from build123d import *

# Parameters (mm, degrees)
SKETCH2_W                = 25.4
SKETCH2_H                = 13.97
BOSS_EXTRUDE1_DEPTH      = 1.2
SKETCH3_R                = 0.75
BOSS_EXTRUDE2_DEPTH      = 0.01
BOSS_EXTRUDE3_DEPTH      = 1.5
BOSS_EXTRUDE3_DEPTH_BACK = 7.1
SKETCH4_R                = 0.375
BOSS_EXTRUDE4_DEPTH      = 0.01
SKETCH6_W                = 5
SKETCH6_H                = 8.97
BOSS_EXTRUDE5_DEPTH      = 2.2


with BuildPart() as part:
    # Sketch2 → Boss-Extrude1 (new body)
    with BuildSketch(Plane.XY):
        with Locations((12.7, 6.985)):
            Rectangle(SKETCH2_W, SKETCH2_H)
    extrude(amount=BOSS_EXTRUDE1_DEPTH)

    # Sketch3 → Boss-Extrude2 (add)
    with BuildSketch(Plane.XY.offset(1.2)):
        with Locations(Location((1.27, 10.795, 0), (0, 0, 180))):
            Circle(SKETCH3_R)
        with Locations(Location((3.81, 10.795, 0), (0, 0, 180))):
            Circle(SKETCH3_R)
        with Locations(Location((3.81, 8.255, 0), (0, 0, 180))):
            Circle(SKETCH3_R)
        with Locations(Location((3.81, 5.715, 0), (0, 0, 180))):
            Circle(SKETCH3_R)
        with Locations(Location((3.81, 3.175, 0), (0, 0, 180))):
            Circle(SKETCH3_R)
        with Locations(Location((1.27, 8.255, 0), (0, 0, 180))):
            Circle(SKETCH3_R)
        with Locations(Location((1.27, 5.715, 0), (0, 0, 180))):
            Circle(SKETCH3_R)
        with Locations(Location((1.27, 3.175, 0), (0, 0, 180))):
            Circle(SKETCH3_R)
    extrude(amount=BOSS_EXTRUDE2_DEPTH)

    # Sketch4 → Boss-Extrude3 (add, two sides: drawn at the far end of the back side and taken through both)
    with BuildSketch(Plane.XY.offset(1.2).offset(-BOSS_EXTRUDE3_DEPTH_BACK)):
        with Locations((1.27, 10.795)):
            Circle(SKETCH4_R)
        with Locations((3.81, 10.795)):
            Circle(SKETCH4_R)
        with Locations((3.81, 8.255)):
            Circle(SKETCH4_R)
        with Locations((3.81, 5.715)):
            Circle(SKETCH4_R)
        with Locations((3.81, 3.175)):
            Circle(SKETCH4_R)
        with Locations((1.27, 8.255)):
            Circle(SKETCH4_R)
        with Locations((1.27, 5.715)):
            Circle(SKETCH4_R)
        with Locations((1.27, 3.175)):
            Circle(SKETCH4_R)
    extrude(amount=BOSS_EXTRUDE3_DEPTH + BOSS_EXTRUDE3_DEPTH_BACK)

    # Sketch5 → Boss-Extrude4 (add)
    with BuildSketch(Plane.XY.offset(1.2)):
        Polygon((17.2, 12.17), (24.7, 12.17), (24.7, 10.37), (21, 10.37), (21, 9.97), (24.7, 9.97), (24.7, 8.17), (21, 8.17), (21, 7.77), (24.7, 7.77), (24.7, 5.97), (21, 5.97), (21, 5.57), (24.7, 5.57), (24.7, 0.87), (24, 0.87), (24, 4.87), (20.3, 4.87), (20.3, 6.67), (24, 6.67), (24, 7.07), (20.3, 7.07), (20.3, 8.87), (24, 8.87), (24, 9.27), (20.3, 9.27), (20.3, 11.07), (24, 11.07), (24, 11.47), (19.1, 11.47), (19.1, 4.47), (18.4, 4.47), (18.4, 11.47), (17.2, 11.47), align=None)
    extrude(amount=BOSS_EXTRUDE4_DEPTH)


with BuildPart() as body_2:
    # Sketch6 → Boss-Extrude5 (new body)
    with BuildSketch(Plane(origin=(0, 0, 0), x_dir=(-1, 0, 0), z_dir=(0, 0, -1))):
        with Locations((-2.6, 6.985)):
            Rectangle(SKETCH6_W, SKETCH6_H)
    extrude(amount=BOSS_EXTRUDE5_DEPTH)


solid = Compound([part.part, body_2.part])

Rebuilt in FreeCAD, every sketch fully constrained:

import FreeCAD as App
import Part
import Sketcher

doc = App.newDocument("Part")
body = doc.addObject("PartDesign::Body", "Body")

# Sketch on XY plane
sketch1 = body.newObject("Sketcher::SketchObject", "Sketch")
sketch1.AttachmentSupport = (doc.getObject("XY_Plane"), [""])
sketch1.MapMode = "FlatFace"
sketch1.addGeometry([
    Part.LineSegment(App.Vector(0, 14, 0), App.Vector(0, 0, 0)),
    Part.LineSegment(App.Vector(0, 0, 0), App.Vector(25, 0, 0)),
    Part.LineSegment(App.Vector(25, 0, 0), App.Vector(25, 14, 0)),
    Part.LineSegment(App.Vector(25, 14, 0), App.Vector(0, 14, 0)),
], False)
sketch1.addConstraint([
    Sketcher.Constraint("Coincident", 0, 2, 1, 1),
    Sketcher.Constraint("Coincident", 1, 2, 2, 1),
    Sketcher.Constraint("Coincident", 2, 2, 3, 1),
    Sketcher.Constraint("Coincident", 3, 2, 0, 1),
    Sketcher.Constraint("Vertical", 0),
    Sketcher.Constraint("Horizontal", 1),
    Sketcher.Constraint("Vertical", 2),
    Sketcher.Constraint("Horizontal", 3),
    Sketcher.Constraint("Coincident", 0, 2, -1, 1),
    Sketcher.Constraint("DistanceX", 1, 1, 1, 2, 25.4),
    Sketcher.Constraint("DistanceY", 0, 2, 0, 1, 13.97),
])
pad1 = body.newObject("PartDesign::Pad", "Pad")
pad1.Profile = sketch1
pad1.Length = 1.2

# Sketch on XY plane
sketch2 = body.newObject("Sketcher::SketchObject", "Sketch001")
sketch2.AttachmentSupport = (doc.getObject("XY_Plane"), [""])
sketch2.MapMode = "FlatFace"
sketch2.AttachmentOffset = App.Placement(App.Vector(0, 0, 1.2), App.Rotation())
sketch2.addGeometry([
    Part.Circle(App.Vector(1.3, 10.8, 0), App.Vector(0, 0, 1), 0.8),  # 0
    Part.Circle(App.Vector(3.8, 10.8, 0), App.Vector(0, 0, 1), 0.8),  # 1
    Part.Circle(App.Vector(3.8, 8.3, 0), App.Vector(0, 0, 1), 0.8),  # 2
    Part.Circle(App.Vector(3.8, 5.7, 0), App.Vector(0, 0, 1), 0.8),  # 3
    Part.Circle(App.Vector(3.8, 3.2, 0), App.Vector(0, 0, 1), 0.8),  # 4
    Part.Circle(App.Vector(1.3, 8.3, 0), App.Vector(0, 0, 1), 0.8),  # 5
    Part.Circle(App.Vector(1.3, 5.7, 0), App.Vector(0, 0, 1), 0.8),  # 6
    Part.Circle(App.Vector(1.3, 3.2, 0), App.Vector(0, 0, 1), 0.8),  # 7
], False)
sketch2.addConstraint([
    Sketcher.Constraint("Equal", 0, 1),
    Sketcher.Constraint("Equal", 1, 2),
    Sketcher.Constraint("Equal", 2, 3),
    Sketcher.Constraint("Equal", 3, 4),
    Sketcher.Constraint("Equal", 4, 5),
    Sketcher.Constraint("Equal", 5, 6),
    Sketcher.Constraint("Equal", 6, 7),
    Sketcher.Constraint("Horizontal", 0, 3, 1, 3),
    Sketcher.Constraint("Horizontal", 2, 3, 5, 3),
    Sketcher.Constraint("Horizontal", 3, 3, 6, 3),
    Sketcher.Constraint("Horizontal", 4, 3, 7, 3),
    Sketcher.Constraint("Vertical", 1, 3, 2, 3),
    Sketcher.Constraint("Vertical", 2, 3, 3, 3),
    Sketcher.Constraint("Vertical", 3, 3, 4, 3),
    Sketcher.Constraint("Vertical", 0, 3, 5, 3),
    Sketcher.Constraint("Vertical", 5, 3, 6, 3),
    Sketcher.Constraint("Vertical", 6, 3, 7, 3),
    Sketcher.Constraint("Diameter", 0, 1.5),
    Sketcher.Constraint("DistanceX", -1, 1, 0, 3, 1.27),
    Sketcher.Constraint("DistanceX", -1, 1, 1, 3, 3.81),
    Sketcher.Constraint("DistanceY", 2, 3, 1, 3, 2.54),
    Sketcher.Constraint("DistanceY", 3, 3, 2, 3, 2.54),
    Sketcher.Constraint("DistanceY", 4, 3, 3, 3, 2.54),
    Sketcher.Constraint("DistanceY", -1, 1, 0, 3, 10.795),
])
pad2 = body.newObject("PartDesign::Pad", "Pad001")
pad2.Profile = sketch2
pad2.Length = 0.01

# Sketch on XY plane
sketch3 = body.newObject("Sketcher::SketchObject", "Sketch002")
sketch3.AttachmentSupport = (doc.getObject("XY_Plane"), [""])
sketch3.MapMode = "FlatFace"
sketch3.AttachmentOffset = App.Placement(App.Vector(0, 0, 1.2), App.Rotation())
sketch3.addGeometry([
    Part.Circle(App.Vector(1.27, 10.79, 0), App.Vector(0, 0, 1), 0.38),  # 0
    Part.Circle(App.Vector(3.81, 10.79, 0), App.Vector(0, 0, 1), 0.38),  # 1
    Part.Circle(App.Vector(3.81, 8.26, 0), App.Vector(0, 0, 1), 0.38),  # 2
    Part.Circle(App.Vector(3.81, 5.71, 0), App.Vector(0, 0, 1), 0.38),  # 3
    Part.Circle(App.Vector(3.81, 3.17, 0), App.Vector(0, 0, 1), 0.38),  # 4
    Part.Circle(App.Vector(1.27, 8.26, 0), App.Vector(0, 0, 1), 0.38),  # 5
    Part.Circle(App.Vector(1.27, 5.71, 0), App.Vector(0, 0, 1), 0.38),  # 6
    Part.Circle(App.Vector(1.27, 3.17, 0), App.Vector(0, 0, 1), 0.38),  # 7
], False)
sketch3.addConstraint([
    Sketcher.Constraint("Equal", 0, 1),
    Sketcher.Constraint("Equal", 1, 2),
    Sketcher.Constraint("Equal", 2, 3),
    Sketcher.Constraint("Equal", 3, 4),
    Sketcher.Constraint("Equal", 4, 5),
    Sketcher.Constraint("Equal", 5, 6),
    Sketcher.Constraint("Equal", 6, 7),
    Sketcher.Constraint("Horizontal", 0, 3, 1, 3),
    Sketcher.Constraint("Horizontal", 2, 3, 5, 3),
    Sketcher.Constraint("Horizontal", 3, 3, 6, 3),
    Sketcher.Constraint("Horizontal", 4, 3, 7, 3),
    Sketcher.Constraint("Vertical", 1, 3, 2, 3),
    Sketcher.Constraint("Vertical", 2, 3, 3, 3),
    Sketcher.Constraint("Vertical", 3, 3, 4, 3),
    Sketcher.Constraint("Vertical", 0, 3, 5, 3),
    Sketcher.Constraint("Vertical", 5, 3, 6, 3),
    Sketcher.Constraint("Vertical", 6, 3, 7, 3),
    Sketcher.Constraint("Diameter", 0, 0.75),
    Sketcher.Constraint("DistanceX", -1, 1, 0, 3, 1.27),
    Sketcher.Constraint("DistanceX", -1, 1, 1, 3, 3.81),
    Sketcher.Constraint("DistanceY", 2, 3, 1, 3, 2.54),
    Sketcher.Constraint("DistanceY", 3, 3, 2, 3, 2.54),
    Sketcher.Constraint("DistanceY", 4, 3, 3, 3, 2.54),
    Sketcher.Constraint("DistanceY", -1, 1, 0, 3, 10.795),
])
pad3 = body.newObject("PartDesign::Pad", "Pad002")
pad3.Profile = sketch3
pad3.Type = "TwoLengths"
pad3.Length = 1.5
pad3.Length2 = 7.1

# Sketch on XY plane
sketch4 = body.newObject("Sketcher::SketchObject", "Sketch003")
sketch4.AttachmentSupport = (doc.getObject("XY_Plane"), [""])
sketch4.MapMode = "FlatFace"
sketch4.AttachmentOffset = App.Placement(App.Vector(0, 0, 1.2), App.Rotation())
sketch4.addGeometry([
    Part.LineSegment(App.Vector(24.7, 12.17, 0), App.Vector(17.2, 12.17, 0)),  # 0
    Part.LineSegment(App.Vector(17.2, 12.17, 0), App.Vector(17.2, 11.47, 0)),  # 1
    Part.LineSegment(App.Vector(17.2, 11.47, 0), App.Vector(18.4, 11.47, 0)),  # 2
    Part.LineSegment(App.Vector(18.4, 11.47, 0), App.Vector(18.4, 4.47, 0)),  # 3
    Part.LineSegment(App.Vector(18.4, 4.47, 0), App.Vector(19.1, 4.47, 0)),  # 4
    Part.LineSegment(App.Vector(19.1, 4.47, 0), App.Vector(19.1, 11.47, 0)),  # 5
    Part.LineSegment(App.Vector(19.1, 11.47, 0), App.Vector(24, 11.47, 0)),  # 6
    Part.LineSegment(App.Vector(24, 11.47, 0), App.Vector(24, 11.07, 0)),  # 7
    Part.LineSegment(App.Vector(24, 11.07, 0), App.Vector(20.3, 11.07, 0)),  # 8
    Part.LineSegment(App.Vector(20.3, 11.07, 0), App.Vector(20.3, 9.27, 0)),  # 9
    Part.LineSegment(App.Vector(20.3, 9.27, 0), App.Vector(24, 9.27, 0)),  # 10
    Part.LineSegment(App.Vector(24, 9.27, 0), App.Vector(24, 8.87, 0)),  # 11
    Part.LineSegment(App.Vector(24, 8.87, 0), App.Vector(20.3, 8.87, 0)),  # 12
    Part.LineSegment(App.Vector(20.3, 8.87, 0), App.Vector(20.3, 7.07, 0)),  # 13
    Part.LineSegment(App.Vector(20.3, 7.07, 0), App.Vector(24, 7.07, 0)),  # 14
    Part.LineSegment(App.Vector(24, 7.07, 0), App.Vector(24, 6.67, 0)),  # 15
    Part.LineSegment(App.Vector(24, 6.67, 0), App.Vector(20.3, 6.67, 0)),  # 16
    Part.LineSegment(App.Vector(20.3, 6.67, 0), App.Vector(20.3, 4.87, 0)),  # 17
    Part.LineSegment(App.Vector(20.3, 4.87, 0), App.Vector(24, 4.87, 0)),  # 18
    Part.LineSegment(App.Vector(24, 4.87, 0), App.Vector(24, 0.87, 0)),  # 19
    Part.LineSegment(App.Vector(24, 0.87, 0), App.Vector(24.7, 0.87, 0)),  # 20
    Part.LineSegment(App.Vector(24.7, 0.87, 0), App.Vector(24.7, 5.57, 0)),  # 21
    Part.LineSegment(App.Vector(24.7, 5.57, 0), App.Vector(21, 5.57, 0)),  # 22
    Part.LineSegment(App.Vector(21, 5.57, 0), App.Vector(21, 5.97, 0)),  # 23
    Part.LineSegment(App.Vector(21, 5.97, 0), App.Vector(24.7, 5.97, 0)),  # 24
    Part.LineSegment(App.Vector(24.7, 5.97, 0), App.Vector(24.7, 7.77, 0)),  # 25
    Part.LineSegment(App.Vector(24.7, 7.77, 0), App.Vector(21, 7.77, 0)),  # 26
    Part.LineSegment(App.Vector(21, 7.77, 0), App.Vector(21, 8.17, 0)),  # 27
    Part.LineSegment(App.Vector(21, 8.17, 0), App.Vector(24.7, 8.17, 0)),  # 28
    Part.LineSegment(App.Vector(24.7, 8.17, 0), App.Vector(24.7, 9.97, 0)),  # 29
    Part.LineSegment(App.Vector(24.7, 9.97, 0), App.Vector(21, 9.97, 0)),  # 30
    Part.LineSegment(App.Vector(21, 9.97, 0), App.Vector(21, 10.37, 0)),  # 31
    Part.LineSegment(App.Vector(21, 10.37, 0), App.Vector(24.7, 10.37, 0)),  # 32
    Part.LineSegment(App.Vector(24.7, 10.37, 0), App.Vector(24.7, 12.17, 0)),  # 33
], False)
sketch4.addConstraint([
    Sketcher.Constraint("Coincident", 0, 2, 1, 1),
    Sketcher.Constraint("Coincident", 1, 2, 2, 1),
    Sketcher.Constraint("Coincident", 2, 2, 3, 1),
    Sketcher.Constraint("Coincident", 3, 2, 4, 1),
    Sketcher.Constraint("Coincident", 4, 2, 5, 1),
    Sketcher.Constraint("Coincident", 5, 2, 6, 1),
    Sketcher.Constraint("Coincident", 6, 2, 7, 1),
    Sketcher.Constraint("Coincident", 7, 2, 8, 1),
    Sketcher.Constraint("Coincident", 8, 2, 9, 1),
    Sketcher.Constraint("Coincident", 9, 2, 10, 1),
    Sketcher.Constraint("Coincident", 10, 2, 11, 1),
    Sketcher.Constraint("Coincident", 11, 2, 12, 1),
    Sketcher.Constraint("Coincident", 12, 2, 13, 1),
    Sketcher.Constraint("Coincident", 13, 2, 14, 1),
    Sketcher.Constraint("Coincident", 14, 2, 15, 1),
    Sketcher.Constraint("Coincident", 15, 2, 16, 1),
    Sketcher.Constraint("Coincident", 16, 2, 17, 1),
    Sketcher.Constraint("Coincident", 17, 2, 18, 1),
    Sketcher.Constraint("Coincident", 18, 2, 19, 1),
    Sketcher.Constraint("Coincident", 19, 2, 20, 1),
    Sketcher.Constraint("Coincident", 20, 2, 21, 1),
    Sketcher.Constraint("Coincident", 21, 2, 22, 1),
    Sketcher.Constraint("Coincident", 22, 2, 23, 1),
    Sketcher.Constraint("Coincident", 23, 2, 24, 1),
    Sketcher.Constraint("Coincident", 24, 2, 25, 1),
    Sketcher.Constraint("Coincident", 25, 2, 26, 1),
    Sketcher.Constraint("Coincident", 26, 2, 27, 1),
    Sketcher.Constraint("Coincident", 27, 2, 28, 1),
    Sketcher.Constraint("Coincident", 28, 2, 29, 1),
    Sketcher.Constraint("Coincident", 29, 2, 30, 1),
    Sketcher.Constraint("Coincident", 30, 2, 31, 1),
    Sketcher.Constraint("Coincident", 31, 2, 32, 1),
    Sketcher.Constraint("Coincident", 32, 2, 33, 1),
    Sketcher.Constraint("Coincident", 33, 2, 0, 1),
    Sketcher.Constraint("Horizontal", 0),
    Sketcher.Constraint("Vertical", 1),
    Sketcher.Constraint("Horizontal", 2),
    Sketcher.Constraint("Vertical", 3),
    Sketcher.Constraint("Horizontal", 4),
    Sketcher.Constraint("Vertical", 5),
    Sketcher.Constraint("Horizontal", 6),
    Sketcher.Constraint("Vertical", 7),
    Sketcher.Constraint("Horizontal", 8),
    Sketcher.Constraint("Vertical", 9),
    Sketcher.Constraint("Horizontal", 10),
    Sketcher.Constraint("Vertical", 11),
    Sketcher.Constraint("Horizontal", 12),
    Sketcher.Constraint("Vertical", 13),
    Sketcher.Constraint("Horizontal", 14),
    Sketcher.Constraint("Vertical", 15),
    Sketcher.Constraint("Horizontal", 16),
    Sketcher.Constraint("Vertical", 17),
    Sketcher.Constraint("Horizontal", 18),
    Sketcher.Constraint("Vertical", 19),
    Sketcher.Constraint("Horizontal", 20),
    Sketcher.Constraint("Vertical", 21),
    Sketcher.Constraint("Horizontal", 22),
    Sketcher.Constraint("Vertical", 23),
    Sketcher.Constraint("Horizontal", 24),
    Sketcher.Constraint("Vertical", 25),
    Sketcher.Constraint("Horizontal", 26),
    Sketcher.Constraint("Vertical", 27),
    Sketcher.Constraint("Horizontal", 28),
    Sketcher.Constraint("Vertical", 29),
    Sketcher.Constraint("Horizontal", 30),
    Sketcher.Constraint("Vertical", 31),
    Sketcher.Constraint("Horizontal", 32),
    Sketcher.Constraint("Vertical", 33),
    Sketcher.Constraint("Horizontal", 2, 2, 5, 2),
    Sketcher.Constraint("Vertical", 7, 2, 10, 2),
    Sketcher.Constraint("Vertical", 9, 2, 12, 2),
    Sketcher.Constraint("Vertical", 11, 2, 14, 2),
    Sketcher.Constraint("Vertical", 13, 2, 16, 2),
    Sketcher.Constraint("Vertical", 15, 2, 18, 2),
    Sketcher.Constraint("Vertical", 21, 2, 24, 2),
    Sketcher.Constraint("Vertical", 23, 2, 26, 2),
    Sketcher.Constraint("Vertical", 25, 2, 28, 2),
    Sketcher.Constraint("Vertical", 27, 2, 30, 2),
    Sketcher.Constraint("Vertical", 29, 2, 32, 2),
    Sketcher.Constraint("Equal", 4, 20),
    Sketcher.Constraint("Equal", 18, 22),
    Sketcher.Constraint("Equal", 20, 1),
    Sketcher.Constraint("Equal", 7, 11),
    Sketcher.Constraint("Equal", 9, 13),
    Sketcher.Constraint("Equal", 11, 15),
    Sketcher.Constraint("Equal", 13, 17),
    Sketcher.Constraint("Equal", 15, 23),
    Sketcher.Constraint("Equal", 17, 25),
    Sketcher.Constraint("Equal", 23, 27),
    Sketcher.Constraint("Equal", 25, 29),
    Sketcher.Constraint("Equal", 27, 31),
    Sketcher.Constraint("Equal", 29, 33),
    Sketcher.Constraint("DistanceY", 3, 2, 3, 1, 7.0),
    Sketcher.Constraint("DistanceY", 19, 2, 19, 1, 4.0),
    Sketcher.Constraint("DistanceX", 0, 2, 0, 1, 7.5),
    Sketcher.Constraint("DistanceX", 2, 1, 2, 2, 1.2),
    Sketcher.Constraint("DistanceX", 4, 1, 4, 2, 0.7),
    Sketcher.Constraint("DistanceX", 8, 2, 8, 1, 3.7),
    Sketcher.Constraint("DistanceY", 7, 2, 7, 1, 0.4),
    Sketcher.Constraint("DistanceY", 9, 2, 9, 1, 1.8),
    Sketcher.Constraint("DistanceX", -1, 1, 6, 2, 24.0),
    Sketcher.Constraint("DistanceY", -1, 1, 0, 2, 12.17),
])
pad4 = body.newObject("PartDesign::Pad", "Pad003")
pad4.Profile = sketch4
pad4.Length = 0.01
body2 = doc.addObject("PartDesign::Body", "Body001")

# Sketch on XY plane
sketch5 = body2.newObject("Sketcher::SketchObject", "Sketch004")
sketch5.AttachmentSupport = (doc.getObject("XY_Plane001"), [""])
sketch5.MapMode = "FlatFace"
sketch5.addGeometry([
    Part.LineSegment(App.Vector(5, 11, 0), App.Vector(5, 2, 0)),
    Part.LineSegment(App.Vector(5, 2, 0), App.Vector(0, 2, 0)),
    Part.LineSegment(App.Vector(0, 2, 0), App.Vector(0, 11, 0)),
    Part.LineSegment(App.Vector(0, 11, 0), App.Vector(5, 11, 0)),
], False)
sketch5.addConstraint([
    Sketcher.Constraint("Coincident", 0, 2, 1, 1),
    Sketcher.Constraint("Coincident", 1, 2, 2, 1),
    Sketcher.Constraint("Coincident", 2, 2, 3, 1),
    Sketcher.Constraint("Coincident", 3, 2, 0, 1),
    Sketcher.Constraint("Vertical", 0),
    Sketcher.Constraint("Horizontal", 1),
    Sketcher.Constraint("Vertical", 2),
    Sketcher.Constraint("Horizontal", 3),
    Sketcher.Constraint("DistanceX", 1, 2, 1, 1, 5.0),
    Sketcher.Constraint("DistanceY", 0, 2, 0, 1, 8.97),
    Sketcher.Constraint("DistanceX", -1, 1, 0, 2, 5.1),
    Sketcher.Constraint("DistanceY", -1, 1, 0, 2, 2.5),
])
pad5 = body2.newObject("PartDesign::Pad", "Pad004")
pad5.Profile = sketch5
pad5.Length = 2.2
pad5.Reversed = True

doc.recompute()
